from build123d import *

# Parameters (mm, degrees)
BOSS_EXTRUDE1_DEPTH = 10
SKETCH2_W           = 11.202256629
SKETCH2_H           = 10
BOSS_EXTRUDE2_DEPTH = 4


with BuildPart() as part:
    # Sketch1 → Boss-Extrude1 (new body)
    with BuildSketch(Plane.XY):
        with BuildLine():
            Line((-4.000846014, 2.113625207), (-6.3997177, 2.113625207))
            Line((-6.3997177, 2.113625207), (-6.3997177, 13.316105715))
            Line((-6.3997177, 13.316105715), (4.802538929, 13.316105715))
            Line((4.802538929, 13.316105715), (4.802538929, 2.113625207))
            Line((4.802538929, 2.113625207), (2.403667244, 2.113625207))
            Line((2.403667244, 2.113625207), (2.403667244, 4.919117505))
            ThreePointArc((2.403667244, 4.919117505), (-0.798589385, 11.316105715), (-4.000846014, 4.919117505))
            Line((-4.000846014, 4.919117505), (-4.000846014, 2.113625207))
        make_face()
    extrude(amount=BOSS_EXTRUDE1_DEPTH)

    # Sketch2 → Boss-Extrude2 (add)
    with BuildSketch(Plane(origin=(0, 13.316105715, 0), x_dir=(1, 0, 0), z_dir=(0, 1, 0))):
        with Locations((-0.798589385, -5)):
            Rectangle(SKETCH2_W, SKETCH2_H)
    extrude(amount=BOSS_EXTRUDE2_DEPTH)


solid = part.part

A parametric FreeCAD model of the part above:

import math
import FreeCAD as App
import Part
import Sketcher

V = App.Vector


def add_polygon(sketch, points):
    """Adds a closed chain of lines whose ends are joined by coincident constraints."""
    first, n = sketch.GeometryCount, len(points)
    for a, b in zip(points, points[1:] + points[:1]):
        sketch.addGeometry(Part.LineSegment(App.Vector(*a, 0), App.Vector(*b, 0)), False)
    for i in range(n):
        sketch.addConstraint(Sketcher.Constraint("Coincident", first + i, 2, first + (i + 1) % n, 1))

doc = App.newDocument("Part")
body = doc.addObject("PartDesign::Body", "Body")

# Sketch on XY plane
sketch1 = doc.addObject("Sketcher::SketchObject", "Sketch")
body.addObject(sketch1)
sketch1.AttachmentSupport = (doc.XY_Plane, [""])
sketch1.MapMode = "FlatFace"
sketch1.addGeometry([
    Part.LineSegment(V(-6.4, 2.1, 0), V(-4, 2.1, 0)),  # 0
    Part.LineSegment(V(-4, 2.1, 0), V(-4, 4.9, 0)),  # 1
    Part.ArcOfCircle(Part.Circle(V(-0.8, 7.3, 0), V(0, 0, 1), 4), math.radians(-37), math.radians(217)),  # 2
    Part.LineSegment(V(2.4, 4.9, 0), V(2.4, 2.1, 0)),  # 3
    Part.LineSegment(V(2.4, 2.1, 0), V(4.8, 2.1, 0)),  # 4
    Part.LineSegment(V(4.8, 2.1, 0), V(4.8, 13.3, 0)),  # 5
    Part.LineSegment(V(4.8, 13.3, 0), V(-6.4, 13.3, 0)),  # 6
    Part.LineSegment(V(-6.4, 13.3, 0), V(-6.4, 2.1, 0)),  # 7
], False)
sketch1.addConstraint([
    Sketcher.Constraint("Coincident", 0, 2, 1, 1),
    Sketcher.Constraint("Coincident", 1, 2, 2, 2),
    Sketcher.Constraint("Coincident", 2, 1, 3, 1),
    Sketcher.Constraint("Coincident", 3, 2, 4, 1),
    Sketcher.Constraint("Coincident", 4, 2, 5, 1),
    Sketcher.Constraint("Coincident", 5, 2, 6, 1),
    Sketcher.Constraint("Coincident", 6, 2, 7, 1),
    Sketcher.Constraint("Coincident", 7, 2, 0, 1),
    Sketcher.Constraint("Horizontal", 0),
    Sketcher.Constraint("Vertical", 1),
    Sketcher.Constraint("Vertical", 3),
    Sketcher.Constraint("Horizontal", 4),
    Sketcher.Constraint("Vertical", 5),
    Sketcher.Constraint("Horizontal", 6),
    Sketcher.Constraint("Vertical", 7),
    Sketcher.Constraint("Horizontal", 1, 2, 2, 1),
    Sketcher.Constraint("Horizontal", 0, 2, 3, 2),
    Sketcher.Constraint("Equal", 0, 4),
    Sketcher.Constraint("Radius", 2, 4.0),
    Sketcher.Constraint("DistanceY", 2, 3, 5, 2, 6.0),
    Sketcher.Constraint("DistanceX", 0, 1, 0, 2, 2.398872),
    Sketcher.Constraint("DistanceY", 5, 1, 5, 2, 11.202481),
    Sketcher.Constraint("DistanceX", 6, 2, 6, 1, 11.202257),
    Sketcher.Constraint("DistanceX", 2, 3, -1, 1, 0.798589),
    Sketcher.Constraint("DistanceY", -1, 1, 2, 3, 7.316106),
])
pad1 = doc.addObject("PartDesign::Pad", "Pad")
body.addObject(pad1)
pad1.Profile = sketch1
pad1.Length = 10

# Sketch on XZ plane
sketch2 = doc.addObject("Sketcher::SketchObject", "Sketch001")
body.addObject(sketch2)
sketch2.AttachmentSupport = (doc.XZ_Plane, [""])
sketch2.MapMode = "FlatFace"
sketch2.AttachmentOffset = App.Placement(V(0, 0, -13.316106), App.Rotation())
add_polygon(sketch2, [(-6, 0), (-6, 10), (5, 10), (5, 0)])  # lines 0-3
sketch2.addConstraint([
    Sketcher.Constraint("Vertical", 0),
    Sketcher.Constraint("Horizontal", 1),
    Sketcher.Constraint("Vertical", 2),
    Sketcher.Constraint("Horizontal", 3),
    Sketcher.Constraint("PointOnObject", 2, 2, -1),
    Sketcher.Constraint("DistanceY", 0, 1, 0, 2, 10.0),
    Sketcher.Constraint("DistanceX", 1, 1, 1, 2, 11.202257),
    Sketcher.Constraint("DistanceX", -1, 1, 1, 2, 4.802539),
])
pad2 = doc.addObject("PartDesign::Pad", "Pad001")
body.addObject(pad2)
pad2.Profile = sketch2
pad2.Length = 4
pad2.Reversed = True

doc.recompute()
